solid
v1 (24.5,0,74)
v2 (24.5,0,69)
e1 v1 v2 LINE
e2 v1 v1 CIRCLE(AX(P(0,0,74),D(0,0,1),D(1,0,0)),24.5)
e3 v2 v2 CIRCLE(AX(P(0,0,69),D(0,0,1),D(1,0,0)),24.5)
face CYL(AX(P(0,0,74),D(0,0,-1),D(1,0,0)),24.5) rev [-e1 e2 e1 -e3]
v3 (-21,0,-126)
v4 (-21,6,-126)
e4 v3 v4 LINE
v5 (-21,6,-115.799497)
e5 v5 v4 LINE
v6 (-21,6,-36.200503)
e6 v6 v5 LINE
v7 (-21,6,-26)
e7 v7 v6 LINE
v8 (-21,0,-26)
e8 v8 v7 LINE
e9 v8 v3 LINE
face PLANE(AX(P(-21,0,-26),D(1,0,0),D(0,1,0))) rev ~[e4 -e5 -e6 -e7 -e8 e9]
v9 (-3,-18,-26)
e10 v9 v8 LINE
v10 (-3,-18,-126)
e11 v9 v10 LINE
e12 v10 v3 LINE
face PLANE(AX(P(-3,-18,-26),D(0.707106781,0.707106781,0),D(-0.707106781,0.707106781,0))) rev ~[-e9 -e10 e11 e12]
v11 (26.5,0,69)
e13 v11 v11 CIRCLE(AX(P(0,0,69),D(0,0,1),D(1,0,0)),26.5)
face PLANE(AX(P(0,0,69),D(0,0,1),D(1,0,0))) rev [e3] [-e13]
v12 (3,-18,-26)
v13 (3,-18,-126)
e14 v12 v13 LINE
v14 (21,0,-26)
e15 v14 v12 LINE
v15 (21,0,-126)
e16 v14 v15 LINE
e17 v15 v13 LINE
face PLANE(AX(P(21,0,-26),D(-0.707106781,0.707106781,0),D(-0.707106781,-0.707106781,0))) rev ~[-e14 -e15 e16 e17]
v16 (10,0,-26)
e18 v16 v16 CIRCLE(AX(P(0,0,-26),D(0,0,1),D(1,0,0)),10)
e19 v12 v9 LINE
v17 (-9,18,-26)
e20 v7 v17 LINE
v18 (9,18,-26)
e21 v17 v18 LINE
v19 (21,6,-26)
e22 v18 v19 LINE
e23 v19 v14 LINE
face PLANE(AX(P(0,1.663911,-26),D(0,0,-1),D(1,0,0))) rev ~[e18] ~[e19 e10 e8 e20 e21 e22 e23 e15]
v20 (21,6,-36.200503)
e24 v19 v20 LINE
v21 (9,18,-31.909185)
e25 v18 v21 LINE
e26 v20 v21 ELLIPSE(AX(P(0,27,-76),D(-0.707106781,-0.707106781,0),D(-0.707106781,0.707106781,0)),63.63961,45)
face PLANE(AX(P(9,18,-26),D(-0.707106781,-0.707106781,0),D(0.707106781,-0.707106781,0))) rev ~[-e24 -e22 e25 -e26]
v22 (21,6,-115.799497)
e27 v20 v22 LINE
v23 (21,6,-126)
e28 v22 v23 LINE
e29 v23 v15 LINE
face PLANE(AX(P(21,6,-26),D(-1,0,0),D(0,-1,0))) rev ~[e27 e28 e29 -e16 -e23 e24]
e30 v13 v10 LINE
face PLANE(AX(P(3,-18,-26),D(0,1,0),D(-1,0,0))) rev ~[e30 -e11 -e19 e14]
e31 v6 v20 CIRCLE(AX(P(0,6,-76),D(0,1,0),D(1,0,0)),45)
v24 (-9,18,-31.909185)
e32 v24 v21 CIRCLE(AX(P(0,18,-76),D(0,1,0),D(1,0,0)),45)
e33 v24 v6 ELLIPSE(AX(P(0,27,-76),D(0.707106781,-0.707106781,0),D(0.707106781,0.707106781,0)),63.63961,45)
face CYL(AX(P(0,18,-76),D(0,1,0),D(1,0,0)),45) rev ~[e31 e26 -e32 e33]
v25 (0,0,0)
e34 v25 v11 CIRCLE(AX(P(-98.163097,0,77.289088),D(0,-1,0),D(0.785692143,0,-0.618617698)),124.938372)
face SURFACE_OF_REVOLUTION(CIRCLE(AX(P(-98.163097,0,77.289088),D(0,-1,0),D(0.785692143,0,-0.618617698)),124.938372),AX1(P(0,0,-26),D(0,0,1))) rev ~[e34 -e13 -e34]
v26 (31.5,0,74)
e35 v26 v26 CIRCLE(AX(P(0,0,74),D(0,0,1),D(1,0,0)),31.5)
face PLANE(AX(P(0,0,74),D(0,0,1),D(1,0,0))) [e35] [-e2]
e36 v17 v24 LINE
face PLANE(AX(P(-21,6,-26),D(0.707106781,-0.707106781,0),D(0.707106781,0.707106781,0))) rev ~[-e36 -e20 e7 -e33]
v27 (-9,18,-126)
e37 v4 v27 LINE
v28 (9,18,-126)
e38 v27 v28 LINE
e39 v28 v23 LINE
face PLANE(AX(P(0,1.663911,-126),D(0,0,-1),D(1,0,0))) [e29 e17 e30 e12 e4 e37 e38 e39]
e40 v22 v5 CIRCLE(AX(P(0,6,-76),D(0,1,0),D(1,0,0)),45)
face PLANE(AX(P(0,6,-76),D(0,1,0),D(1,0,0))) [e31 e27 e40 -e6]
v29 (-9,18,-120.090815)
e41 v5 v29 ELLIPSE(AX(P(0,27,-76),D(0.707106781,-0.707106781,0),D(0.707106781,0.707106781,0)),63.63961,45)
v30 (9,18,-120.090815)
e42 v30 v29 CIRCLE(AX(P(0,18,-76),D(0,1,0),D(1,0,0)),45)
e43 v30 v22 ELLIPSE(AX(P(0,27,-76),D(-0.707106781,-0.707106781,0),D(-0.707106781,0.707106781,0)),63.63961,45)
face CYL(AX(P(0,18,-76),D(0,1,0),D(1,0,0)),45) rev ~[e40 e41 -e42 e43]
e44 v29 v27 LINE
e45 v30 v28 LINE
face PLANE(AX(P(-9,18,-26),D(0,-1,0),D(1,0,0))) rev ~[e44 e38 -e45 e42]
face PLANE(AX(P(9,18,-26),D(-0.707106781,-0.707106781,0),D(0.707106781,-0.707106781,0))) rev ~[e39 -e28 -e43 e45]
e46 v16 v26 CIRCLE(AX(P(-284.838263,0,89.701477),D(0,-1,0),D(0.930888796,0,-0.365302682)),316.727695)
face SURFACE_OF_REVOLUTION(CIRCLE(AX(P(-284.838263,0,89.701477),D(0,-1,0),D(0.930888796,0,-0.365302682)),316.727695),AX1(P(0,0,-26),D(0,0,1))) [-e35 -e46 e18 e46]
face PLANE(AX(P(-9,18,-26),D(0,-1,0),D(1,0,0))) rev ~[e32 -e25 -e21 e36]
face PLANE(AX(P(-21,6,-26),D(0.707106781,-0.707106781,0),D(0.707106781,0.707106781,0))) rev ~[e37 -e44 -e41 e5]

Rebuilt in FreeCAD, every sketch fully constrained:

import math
import FreeCAD as App
import Part
import Sketcher
from FreeCAD import Vector
Q = App.Units.Quantity

doc = App.newDocument("Part")
body = doc.addObject("PartDesign::Body", "Body")

sketch1 = body.newObject("Sketcher::SketchObject", "Sketch")
sketch1.AttachmentSupport = (doc.getObject("XZ_Plane"), [""])
sketch1.MapMode = "FlatFace"
sketch1.addGeometry(Part.ArcOfCircle(Part.Circle(Vector(-284.8, 115.7, 0), Vector(0, 0, 1), 316.7), math.radians(-21.43), math.radians(-2.84)), False)
sketch1.addGeometry(Part.LineSegment(Vector(31.5, 100, 0), Vector(24.5, 100, 0)), False)
sketch1.addGeometry(Part.LineSegment(Vector(24.5, 100, 0), Vector(24.5, 95, 0)), False)
sketch1.addGeometry(Part.LineSegment(Vector(24.5, 95, 0), Vector(26.5, 95, 0)), False)
sketch1.addGeometry(Part.ArcOfCircle(Part.Circle(Vector(-98.2, 103.3, 0), Vector(0, 0, 1), 124.9), math.radians(-38), math.radians(-4)), False)
sketch1.addGeometry(Part.LineSegment(Vector(0, 26, 0), Vector(0, 0, 0)), False)
sketch1.addGeometry(Part.LineSegment(Vector(0, 0, 0), Vector(10, 0, 0)), False)
sketch1.addConstraint(Sketcher.Constraint("Coincident", 0, 2, 1, 1))
sketch1.addConstraint(Sketcher.Constraint("Coincident", 1, 2, 2, 1))
sketch1.addConstraint(Sketcher.Constraint("Coincident", 2, 2, 3, 1))
sketch1.addConstraint(Sketcher.Constraint("Coincident", 3, 2, 4, 2))
sketch1.addConstraint(Sketcher.Constraint("Coincident", 4, 1, 5, 1))
sketch1.addConstraint(Sketcher.Constraint("Coincident", 5, 2, 6, 1))
sketch1.addConstraint(Sketcher.Constraint("Coincident", 6, 2, 0, 1))
sketch1.addConstraint(Sketcher.Constraint("Horizontal", 1))
sketch1.addConstraint(Sketcher.Constraint("Vertical", 2))
sketch1.addConstraint(Sketcher.Constraint("Horizontal", 3))
sketch1.addConstraint(Sketcher.Constraint("Vertical", 5))
sketch1.addConstraint(Sketcher.Constraint("Horizontal", 6))
sketch1.addConstraint(Sketcher.Constraint("Coincident", 5, 2, -1, 1))
sketch1.addConstraint(Sketcher.Constraint("DistanceX", 1, 2, 1, 1, Q("7 mm")))
sketch1.addConstraint(Sketcher.Constraint("DistanceX", 3, 1, 3, 2, Q("2 mm")))
sketch1.addConstraint(Sketcher.Constraint("DistanceX", 6, 1, 6, 2, Q("10 mm")))
sketch1.addConstraint(Sketcher.Constraint("DistanceY", 2, 2, 2, 1, Q("5 mm")))
sketch1.addConstraint(Sketcher.Constraint("DistanceY", 5, 2, 5, 1, Q("26 mm")))
sketch1.addConstraint(Sketcher.Constraint("DistanceY", -1, 1, 1, 2, Q("100 mm")))
sketch1.addConstraint(Sketcher.Constraint("DistanceX", -1, 1, 0, 2, Q("31.5 mm")))
sketch1.addConstraint(Sketcher.Constraint("Radius", 0, Q("316.727695 mm")))
sketch1.addConstraint(Sketcher.Constraint("Radius", 4, Q("124.938372 mm")))
revolution = body.newObject("PartDesign::Revolution", "Revolution")
revolution.Profile = sketch1
revolution.ReferenceAxis = (sketch1, ["V_Axis"])
revolution.Angle = 360

sketch2 = body.newObject("Sketcher::SketchObject", "Sketch001")
sketch2.AttachmentSupport = (doc.getObject("XY_Plane"), [""])
sketch2.MapMode = "FlatFace"
sketch2.addGeometry(Part.LineSegment(Vector(-3, -18, 0), Vector(-21, 0, 0)), False)
sketch2.addGeometry(Part.LineSegment(Vector(-21, 0, 0), Vector(-21, 6, 0)), False)
sketch2.addGeometry(Part.LineSegment(Vector(-21, 6, 0), Vector(-9, 18, 0)), False)
sketch2.addGeometry(Part.LineSegment(Vector(-9, 18, 0), Vector(9, 18, 0)), False)
sketch2.addGeometry(Part.LineSegment(Vector(9, 18, 0), Vector(21, 6, 0)), False)
sketch2.addGeometry(Part.LineSegment(Vector(21, 6, 0), Vector(21, 0, 0)), False)
sketch2.addGeometry(Part.LineSegment(Vector(21, 0, 0), Vector(3, -18, 0)), False)
sketch2.addGeometry(Part.LineSegment(Vector(3, -18, 0), Vector(-3, -18, 0)), False)
sketch2.addConstraint(Sketcher.Constraint("Coincident", 0, 2, 1, 1))
sketch2.addConstraint(Sketcher.Constraint("Coincident", 1, 2, 2, 1))
sketch2.addConstraint(Sketcher.Constraint("Coincident", 2, 2, 3, 1))
sketch2.addConstraint(Sketcher.Constraint("Coincident", 3, 2, 4, 1))
sketch2.addConstraint(Sketcher.Constraint("Coincident", 4, 2, 5, 1))
sketch2.addConstraint(Sketcher.Constraint("Coincident", 5, 2, 6, 1))
sketch2.addConstraint(Sketcher.Constraint("Coincident", 6, 2, 7, 1))
sketch2.addConstraint(Sketcher.Constraint("Coincident", 7, 2, 0, 1))
sketch2.addConstraint(Sketcher.Constraint("Vertical", 1))
sketch2.addConstraint(Sketcher.Constraint("Horizontal", 3))
sketch2.addConstraint(Sketcher.Constraint("Vertical", 5))
sketch2.addConstraint(Sketcher.Constraint("Horizontal", 7))
sketch2.addConstraint(Sketcher.Constraint("Symmetric", 0, 2, 5, 2, -1, 1))
sketch2.addConstraint(Sketcher.Constraint("PointOnObject", 0, 2, -1))
sketch2.addConstraint(Sketcher.Constraint("Perpendicular", 0, 2))
sketch2.addConstraint(Sketcher.Constraint("Perpendicular", 2, 4))
sketch2.addConstraint(Sketcher.Constraint("Perpendicular", 4, 6))
sketch2.addConstraint(Sketcher.Constraint("Horizontal", 1, 2, 4, 2))
sketch2.addConstraint(Sketcher.Constraint("Equal", 7, 1))
sketch2.addConstraint(Sketcher.Constraint("Equal", 2, 4))
sketch2.addConstraint(Sketcher.Constraint("DistanceX", 3, 1, 3, 2, Q("18 mm")))
sketch2.addConstraint(Sketcher.Constraint("DistanceX", 7, 2, 7, 1, Q("6 mm")))
sketch2.addConstraint(Sketcher.Constraint("DistanceX", 0, 2, -1, 1, Q("21 mm")))
pad1 = body.newObject("PartDesign::Pad", "Pad")
pad1.Profile = sketch2
pad1.Length = 100
pad1.Reversed = True

sketch3 = body.newObject("Sketcher::SketchObject", "Sketch002")
sketch3.AttachmentSupport = (doc.getObject("XZ_Plane"), [""])
sketch3.MapMode = "FlatFace"
sketch3.AttachmentOffset = App.Placement(Vector(0, 0, -18), App.Rotation())
sketch3.addGeometry(Part.Circle(Vector(0, -50, 0), Vector(0, 0, 1), 45), False)
sketch3.addConstraint(Sketcher.Constraint("PointOnObject", 0, 3, -2))
sketch3.addConstraint(Sketcher.Constraint("Diameter", 0, Q("90 mm")))
sketch3.addConstraint(Sketcher.Constraint("DistanceY", 0, 3, -1, 1, Q("50 mm")))
pocket1 = body.newObject("PartDesign::Pocket", "Pocket")
pocket1.Profile = sketch3
pocket1.Length = 12
pocket1.Reversed = True
body2 = doc.addObject("PartDesign::Body", "Body001")
doc.recompute()

body.Placement = App.Placement(Vector(0, 0, -26), App.Rotation(Vector(0, 0, 1), 0))
boolean = body2.newObject("PartDesign::Boolean", "Boolean")
boolean.Type = "Fuse"
boolean.addObjects([body])

doc.recompute()
